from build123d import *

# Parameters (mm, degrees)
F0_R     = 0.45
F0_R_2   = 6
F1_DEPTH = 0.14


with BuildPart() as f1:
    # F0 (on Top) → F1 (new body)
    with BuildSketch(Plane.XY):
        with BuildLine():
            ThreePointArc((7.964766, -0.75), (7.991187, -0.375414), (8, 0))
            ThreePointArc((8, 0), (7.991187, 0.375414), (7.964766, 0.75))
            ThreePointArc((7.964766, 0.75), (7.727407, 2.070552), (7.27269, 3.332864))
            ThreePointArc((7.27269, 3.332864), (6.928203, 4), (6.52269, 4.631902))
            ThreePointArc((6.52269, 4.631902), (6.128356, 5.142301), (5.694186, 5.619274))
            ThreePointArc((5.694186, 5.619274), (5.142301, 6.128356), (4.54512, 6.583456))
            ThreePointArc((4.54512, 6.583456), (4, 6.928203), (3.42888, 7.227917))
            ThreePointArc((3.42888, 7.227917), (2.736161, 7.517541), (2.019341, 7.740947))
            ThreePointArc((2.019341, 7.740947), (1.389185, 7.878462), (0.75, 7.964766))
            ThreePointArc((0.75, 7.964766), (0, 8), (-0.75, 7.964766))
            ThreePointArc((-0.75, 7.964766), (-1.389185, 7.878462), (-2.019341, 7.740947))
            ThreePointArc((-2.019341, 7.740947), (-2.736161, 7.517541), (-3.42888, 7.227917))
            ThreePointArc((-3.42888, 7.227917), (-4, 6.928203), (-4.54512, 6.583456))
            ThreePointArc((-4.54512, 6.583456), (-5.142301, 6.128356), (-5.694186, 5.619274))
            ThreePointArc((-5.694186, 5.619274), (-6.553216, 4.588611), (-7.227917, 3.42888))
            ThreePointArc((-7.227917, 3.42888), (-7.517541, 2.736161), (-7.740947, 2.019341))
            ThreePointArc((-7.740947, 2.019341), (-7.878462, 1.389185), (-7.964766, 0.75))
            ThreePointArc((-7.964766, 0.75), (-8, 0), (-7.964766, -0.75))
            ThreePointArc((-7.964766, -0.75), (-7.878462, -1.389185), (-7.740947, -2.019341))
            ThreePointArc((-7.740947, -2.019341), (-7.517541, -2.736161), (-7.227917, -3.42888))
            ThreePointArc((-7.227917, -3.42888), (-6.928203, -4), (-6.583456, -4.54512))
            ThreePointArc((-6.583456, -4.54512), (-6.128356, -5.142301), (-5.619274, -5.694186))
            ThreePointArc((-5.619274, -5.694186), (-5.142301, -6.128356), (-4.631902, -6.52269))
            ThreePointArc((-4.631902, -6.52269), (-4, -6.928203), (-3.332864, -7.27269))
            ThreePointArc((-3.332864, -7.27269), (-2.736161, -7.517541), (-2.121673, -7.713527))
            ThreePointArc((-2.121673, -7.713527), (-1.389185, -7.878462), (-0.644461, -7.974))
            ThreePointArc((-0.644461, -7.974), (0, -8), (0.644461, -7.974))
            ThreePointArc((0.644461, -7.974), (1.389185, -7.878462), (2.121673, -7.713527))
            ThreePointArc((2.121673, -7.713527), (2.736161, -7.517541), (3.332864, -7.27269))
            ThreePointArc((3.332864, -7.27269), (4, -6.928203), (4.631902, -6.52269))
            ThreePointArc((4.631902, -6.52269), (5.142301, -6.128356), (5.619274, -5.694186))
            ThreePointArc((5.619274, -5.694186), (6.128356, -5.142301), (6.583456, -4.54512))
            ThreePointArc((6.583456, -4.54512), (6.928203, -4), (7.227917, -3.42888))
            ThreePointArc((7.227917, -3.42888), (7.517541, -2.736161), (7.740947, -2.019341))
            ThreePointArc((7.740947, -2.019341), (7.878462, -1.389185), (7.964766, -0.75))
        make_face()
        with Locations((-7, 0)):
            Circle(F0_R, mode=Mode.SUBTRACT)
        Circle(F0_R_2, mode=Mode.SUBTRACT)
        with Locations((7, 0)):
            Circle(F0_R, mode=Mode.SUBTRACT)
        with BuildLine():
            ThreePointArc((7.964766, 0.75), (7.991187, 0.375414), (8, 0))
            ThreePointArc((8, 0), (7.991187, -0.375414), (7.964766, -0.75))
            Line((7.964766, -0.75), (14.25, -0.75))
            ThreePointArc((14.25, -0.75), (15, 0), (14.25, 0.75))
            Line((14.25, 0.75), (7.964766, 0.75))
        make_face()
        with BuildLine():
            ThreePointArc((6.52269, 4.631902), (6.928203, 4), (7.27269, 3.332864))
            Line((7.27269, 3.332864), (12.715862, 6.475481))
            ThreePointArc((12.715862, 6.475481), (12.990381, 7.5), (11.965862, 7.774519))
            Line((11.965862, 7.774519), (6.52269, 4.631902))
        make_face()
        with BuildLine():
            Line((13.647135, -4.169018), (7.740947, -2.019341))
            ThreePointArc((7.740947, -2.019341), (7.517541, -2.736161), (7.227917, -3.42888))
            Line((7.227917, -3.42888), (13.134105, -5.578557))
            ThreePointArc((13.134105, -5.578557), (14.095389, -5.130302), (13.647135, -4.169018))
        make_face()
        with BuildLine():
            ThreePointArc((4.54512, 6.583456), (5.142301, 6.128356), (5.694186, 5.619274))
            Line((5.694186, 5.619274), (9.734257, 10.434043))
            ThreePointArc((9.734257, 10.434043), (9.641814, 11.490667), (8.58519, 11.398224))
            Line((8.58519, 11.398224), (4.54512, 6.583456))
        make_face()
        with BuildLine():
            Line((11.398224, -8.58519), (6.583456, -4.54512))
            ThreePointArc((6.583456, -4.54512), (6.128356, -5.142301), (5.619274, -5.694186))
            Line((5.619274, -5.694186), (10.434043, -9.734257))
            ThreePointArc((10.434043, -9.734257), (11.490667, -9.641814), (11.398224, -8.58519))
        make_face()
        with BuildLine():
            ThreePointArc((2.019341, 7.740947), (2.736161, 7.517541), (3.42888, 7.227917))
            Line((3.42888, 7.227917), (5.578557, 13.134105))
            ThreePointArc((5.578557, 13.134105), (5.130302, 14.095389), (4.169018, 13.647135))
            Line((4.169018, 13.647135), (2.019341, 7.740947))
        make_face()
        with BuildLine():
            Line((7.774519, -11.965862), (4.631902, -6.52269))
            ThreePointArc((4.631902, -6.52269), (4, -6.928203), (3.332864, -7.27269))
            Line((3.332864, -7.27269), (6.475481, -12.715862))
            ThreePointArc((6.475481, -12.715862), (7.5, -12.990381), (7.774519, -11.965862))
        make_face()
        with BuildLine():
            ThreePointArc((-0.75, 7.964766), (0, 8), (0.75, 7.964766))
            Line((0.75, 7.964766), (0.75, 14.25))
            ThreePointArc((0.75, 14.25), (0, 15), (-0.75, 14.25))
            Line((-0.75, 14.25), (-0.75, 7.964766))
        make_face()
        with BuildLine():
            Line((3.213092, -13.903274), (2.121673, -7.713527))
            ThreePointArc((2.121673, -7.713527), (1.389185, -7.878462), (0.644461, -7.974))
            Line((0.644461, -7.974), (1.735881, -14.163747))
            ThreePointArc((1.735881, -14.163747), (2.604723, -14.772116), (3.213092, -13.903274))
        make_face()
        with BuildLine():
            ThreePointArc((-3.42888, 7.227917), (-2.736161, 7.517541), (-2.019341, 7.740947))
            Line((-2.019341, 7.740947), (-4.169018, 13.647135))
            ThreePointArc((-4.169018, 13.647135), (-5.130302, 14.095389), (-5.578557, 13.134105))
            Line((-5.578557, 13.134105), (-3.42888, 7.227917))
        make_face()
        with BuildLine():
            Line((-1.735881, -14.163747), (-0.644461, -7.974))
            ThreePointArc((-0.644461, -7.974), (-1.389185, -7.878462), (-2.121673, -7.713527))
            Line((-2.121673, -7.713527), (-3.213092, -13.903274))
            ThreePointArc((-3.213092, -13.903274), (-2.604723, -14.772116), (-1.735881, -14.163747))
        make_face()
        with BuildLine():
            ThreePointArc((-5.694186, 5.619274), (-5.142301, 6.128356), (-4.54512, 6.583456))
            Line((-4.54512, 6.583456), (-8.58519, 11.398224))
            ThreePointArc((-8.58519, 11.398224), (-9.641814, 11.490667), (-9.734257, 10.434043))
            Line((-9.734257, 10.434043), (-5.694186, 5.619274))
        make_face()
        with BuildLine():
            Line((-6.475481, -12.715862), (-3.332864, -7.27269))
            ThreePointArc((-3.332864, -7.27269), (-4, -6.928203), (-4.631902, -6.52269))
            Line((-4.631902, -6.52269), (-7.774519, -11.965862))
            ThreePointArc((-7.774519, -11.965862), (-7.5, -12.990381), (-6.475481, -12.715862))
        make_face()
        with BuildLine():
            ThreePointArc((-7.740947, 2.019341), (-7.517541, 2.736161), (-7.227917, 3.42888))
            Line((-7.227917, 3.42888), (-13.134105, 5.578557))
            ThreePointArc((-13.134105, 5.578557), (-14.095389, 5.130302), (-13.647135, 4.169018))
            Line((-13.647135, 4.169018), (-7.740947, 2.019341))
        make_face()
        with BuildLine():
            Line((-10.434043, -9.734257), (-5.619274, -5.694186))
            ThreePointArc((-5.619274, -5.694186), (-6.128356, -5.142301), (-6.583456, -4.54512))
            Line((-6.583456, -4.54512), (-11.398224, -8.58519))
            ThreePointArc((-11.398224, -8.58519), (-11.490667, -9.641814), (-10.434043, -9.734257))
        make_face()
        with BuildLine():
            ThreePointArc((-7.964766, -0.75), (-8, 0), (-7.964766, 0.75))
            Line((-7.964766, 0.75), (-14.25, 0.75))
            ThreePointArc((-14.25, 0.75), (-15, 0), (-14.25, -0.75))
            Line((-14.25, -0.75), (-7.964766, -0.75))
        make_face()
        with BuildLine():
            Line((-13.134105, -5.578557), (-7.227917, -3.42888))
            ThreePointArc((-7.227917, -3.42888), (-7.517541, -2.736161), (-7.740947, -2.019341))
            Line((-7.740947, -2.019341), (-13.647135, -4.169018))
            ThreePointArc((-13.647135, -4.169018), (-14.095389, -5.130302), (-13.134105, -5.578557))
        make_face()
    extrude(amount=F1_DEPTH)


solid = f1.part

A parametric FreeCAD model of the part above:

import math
import FreeCAD as App
import Part
import Sketcher
from FreeCAD import Vector

doc = App.newDocument("Part")
params = doc.addObject("Spreadsheet::Sheet", "Params")
for row, (alias, value) in enumerate([
    ("sketch1_diameter", "12 mm"),
    ("sketch1_diameter2", "0.9 mm"),
    ("sketch1_diameter3", "0.9 mm"),
    ("sketch1_radius", "0.75 mm"),
    ("sketch1_radius2", "0.75 mm"),
    ("pad1_length", "0.14 mm"),
], start=1):
    params.set(f"A{row}", alias)
    params.set(f"B{row}", "=" + value)
    params.setAlias(f"B{row}", alias)

body = doc.addObject("PartDesign::Body", "Body")

# Sketch on XY plane
sketch1 = doc.addObject("Sketcher::SketchObject", "Sketch")
body.addObject(sketch1)
sketch1.AttachmentSupport = (doc.XY_Plane, [""])
sketch1.MapMode = "FlatFace"
sketch1.addGeometry(Part.ArcOfCircle(Part.Circle(Vector(0.000009, -0.000002, 0), Vector(0, 0, 1), 7.999991), math.radians(-14.620623), math.radians(-5.379371)), False)
sketch1.addGeometry(Part.LineSegment(Vector(7.964766, -0.75, 0), Vector(14.25, -0.75, 0)), False)
sketch1.addGeometry(Part.ArcOfCircle(Part.Circle(Vector(14.25, 0, 0), Vector(0, 0, 1), 0.75), math.radians(-90), math.radians(90)), False)
sketch1.addGeometry(Part.LineSegment(Vector(14.25, 0.75, 0), Vector(7.964766, 0.75, 0)), False)
sketch1.addGeometry(Part.ArcOfCircle(Part.Circle(Vector(0.00002, 0.000006, 0), Vector(0, 0, 1), 7.99998), math.radians(5.379348), math.radians(24.620639)), False)
sketch1.addGeometry(Part.LineSegment(Vector(7.27269, 3.332864, 0), Vector(12.715862, 6.475481, 0)), False)
sketch1.addGeometry(Part.ArcOfCircle(Part.Circle(Vector(12.340862, 7.125, 0), Vector(0, 0, 1), 0.75), math.radians(-59.999998), math.radians(120.000002)), False)
sketch1.addGeometry(Part.LineSegment(Vector(11.965862, 7.774519, 0), Vector(6.52269, 4.631902, 0)), False)
sketch1.addGeometry(Part.ArcOfCircle(Part.Circle(Vector(0.000136, 0.000111, 0), Vector(0, 0, 1), 7.999825), math.radians(35.379294), math.radians(44.620741)), False)
sketch1.addGeometry(Part.LineSegment(Vector(5.694186, 5.619274, 0), Vector(9.734257, 10.434043, 0)), False)
sketch1.addGeometry(Part.ArcOfCircle(Part.Circle(Vector(9.159724, 10.916134, 0), Vector(0, 0, 1), 0.75), math.radians(-39.99998), math.radians(140.00002)), False)
sketch1.addGeometry(Part.LineSegment(Vector(8.58519, 11.398224, 0), Vector(4.54512, 6.583456, 0)), False)
sketch1.addGeometry(Part.ArcOfCircle(Part.Circle(Vector(-0.000081, -0.000145, 0), Vector(0, 0, 1), 8.000166), math.radians(55.379493), math.radians(64.620543)), False)
sketch1.addGeometry(Part.LineSegment(Vector(3.42888, 7.227917, 0), Vector(5.578557, 13.134105, 0)), False)
sketch1.addGeometry(Part.ArcOfCircle(Part.Circle(Vector(4.873787, 13.390619, 0), Vector(0, 0, 1), 0.75), math.radians(-19.999942), math.radians(159.99996)), False)
sketch1.addGeometry(Part.LineSegment(Vector(4.169018, 13.647135, 0), Vector(2.019341, 7.740947, 0)), False)
sketch1.addGeometry(Part.ArcOfCircle(Part.Circle(Vector(0.000002, 0.000009, 0), Vector(0, 0, 1), 7.999991), math.radians(75.379377), math.radians(84.620629)), False)
sketch1.addGeometry(Part.LineSegment(Vector(0.75, 7.964766, 0), Vector(0.75, 14.25, 0)), False)
sketch1.addGeometry(Part.ArcOfCircle(Part.Circle(Vector(0, 14.25, 0), Vector(0, 0, 1), 0.75), math.radians(0), math.radians(180)), False)
sketch1.addGeometry(Part.LineSegment(Vector(-0.75, 14.25, 0), Vector(-0.75, 7.964766, 0)), False)
sketch1.addGeometry(Part.ArcOfCircle(Part.Circle(Vector(-0.000002, 0.000009, 0), Vector(0, 0, 1), 7.999991), math.radians(95.379371), math.radians(104.620623)), False)
sketch1.addGeometry(Part.LineSegment(Vector(-2.019341, 7.740947, 0), Vector(-4.169018, 13.647135, 0)), False)
sketch1.addGeometry(Part.ArcOfCircle(Part.Circle(Vector(-4.873787, 13.390619, 0), Vector(0, 0, 1), 0.75), math.radians(20.00004), math.radians(199.999942)), False)
sketch1.addGeometry(Part.LineSegment(Vector(-5.578557, 13.134105, 0), Vector(-3.42888, 7.227917, 0)), False)
sketch1.addGeometry(Part.ArcOfCircle(Part.Circle(Vector(0.000081, -0.000145, 0), Vector(0, 0, 1), 8.000166), math.radians(115.379457), math.radians(124.620507)), False)
sketch1.addGeometry(Part.LineSegment(Vector(-4.54512, 6.583456, 0), Vector(-8.58519, 11.398224, 0)), False)
sketch1.addGeometry(Part.ArcOfCircle(Part.Circle(Vector(-9.159724, 10.916134, 0), Vector(0, 0, 1), 0.75), math.radians(39.99998), math.radians(219.99998)), False)
sketch1.addGeometry(Part.LineSegment(Vector(-9.734257, 10.434043, 0), Vector(-5.694186, 5.619274, 0)), False)
sketch1.addGeometry(Part.ArcOfCircle(Part.Circle(Vector(0.000026, -0.00002, 0), Vector(0, 0, 1), 8.000033), math.radians(135.379408), math.radians(154.620571)), False)
sketch1.addGeometry(Part.LineSegment(Vector(-7.227917, 3.42888, 0), Vector(-13.134105, 5.578557, 0)), False)
sketch1.addGeometry(Part.ArcOfCircle(Part.Circle(Vector(-13.390619, 4.873787, 0), Vector(0, 0, 1), 0.75), math.radians(70.000058), math.radians(249.99996)), False)
sketch1.addGeometry(Part.LineSegment(Vector(-13.647135, 4.169018, 0), Vector(-7.740947, 2.019341, 0)), False)
sketch1.addGeometry(Part.ArcOfCircle(Part.Circle(Vector(-0.000009, 0.000002, 0), Vector(0, 0, 1), 7.999991), math.radians(165.379377), math.radians(174.620629)), False)
sketch1.addGeometry(Part.LineSegment(Vector(-7.964766, 0.75, 0), Vector(-14.25, 0.75, 0)), False)
sketch1.addGeometry(Part.ArcOfCircle(Part.Circle(Vector(-14.25, 0, 0), Vector(0, 0, 1), 0.75), math.radians(90), math.radians(270)), False)
sketch1.addGeometry(Part.LineSegment(Vector(-14.25, -0.75, 0), Vector(-7.964766, -0.75, 0)), False)
sketch1.addGeometry(Part.ArcOfCircle(Part.Circle(Vector(-0.000009, -0.000002, 0), Vector(0, 0, 1), 7.999991), math.radians(-174.620629), math.radians(-165.379377)), False)
sketch1.addGeometry(Part.LineSegment(Vector(-7.740947, -2.019341, 0), Vector(-13.647135, -4.169018, 0)), False)
sketch1.addGeometry(Part.ArcOfCircle(Part.Circle(Vector(-13.390619, -4.873787, 0), Vector(0, 0, 1), 0.75), math.radians(110.00004), math.radians(289.999942)), False)
sketch1.addGeometry(Part.LineSegment(Vector(-13.134105, -5.578557, 0), Vector(-7.227917, -3.42888, 0)), False)
sketch1.addGeometry(Part.ArcOfCircle(Part.Circle(Vector(0.000145, 0.000081, 0), Vector(0, 0, 1), 8.000166), math.radians(-154.620543), math.radians(-145.379493)), False)
sketch1.addGeometry(Part.LineSegment(Vector(-6.583456, -4.54512, 0), Vector(-11.398224, -8.58519, 0)), False)
sketch1.addGeometry(Part.ArcOfCircle(Part.Circle(Vector(-10.916134, -9.159724, 0), Vector(0, 0, 1), 0.75), math.radians(129.99998), math.radians(309.99998)), False)
sketch1.addGeometry(Part.LineSegment(Vector(-10.434043, -9.734257, 0), Vector(-5.619274, -5.694186, 0)), False)
sketch1.addGeometry(Part.ArcOfCircle(Part.Circle(Vector(-0.000111, -0.000136, 0), Vector(0, 0, 1), 7.999825), math.radians(-134.620741), math.radians(-125.379294)), False)
sketch1.addGeometry(Part.LineSegment(Vector(-4.631902, -6.52269, 0), Vector(-7.774519, -11.965862, 0)), False)
sketch1.addGeometry(Part.ArcOfCircle(Part.Circle(Vector(-7.125, -12.340862, 0), Vector(0, 0, 1), 0.75), math.radians(149.999998), math.radians(329.999998)), False)
sketch1.addGeometry(Part.LineSegment(Vector(-6.475481, -12.715862, 0), Vector(-3.332864, -7.27269, 0)), False)
sketch1.addGeometry(Part.ArcOfCircle(Part.Circle(Vector(-0.000009, -0.000017, 0), Vector(0, 0, 1), 7.99998), math.radians(-114.620612), math.radians(-105.379349)), False)
sketch1.addGeometry(Part.LineSegment(Vector(-2.121673, -7.713527, 0), Vector(-3.213092, -13.903274, 0)), False)
sketch1.addGeometry(Part.ArcOfCircle(Part.Circle(Vector(-2.474486, -14.033511, 0), Vector(0, 0, 1), 0.75), math.radians(169.999968), math.radians(349.999968)), False)
sketch1.addGeometry(Part.LineSegment(Vector(-1.735881, -14.163747, 0), Vector(-0.644461, -7.974, 0)), False)
sketch1.addGeometry(Part.ArcOfCircle(Part.Circle(Vector(0, 0.000115, 0), Vector(0, 0, 1), 8.000115), math.radians(-94.620552), math.radians(-85.379448)), False)
sketch1.addGeometry(Part.LineSegment(Vector(0.644461, -7.974, 0), Vector(1.735881, -14.163747, 0)), False)
sketch1.addGeometry(Part.ArcOfCircle(Part.Circle(Vector(2.474486, -14.033511, 0), Vector(0, 0, 1), 0.75), math.radians(-169.999968), math.radians(10.000032)), False)
sketch1.addGeometry(Part.LineSegment(Vector(3.213092, -13.903274, 0), Vector(2.121673, -7.713527, 0)), False)
sketch1.addGeometry(Part.ArcOfCircle(Part.Circle(Vector(0.000009, -0.000017, 0), Vector(0, 0, 1), 7.99998), math.radians(-74.620651), math.radians(-65.379388)), False)
sketch1.addGeometry(Part.LineSegment(Vector(3.332864, -7.27269, 0), Vector(6.475481, -12.715862, 0)), False)
sketch1.addGeometry(Part.ArcOfCircle(Part.Circle(Vector(7.125, -12.340862, 0), Vector(0, 0, 1), 0.75), math.radians(-149.999998), math.radians(30.000002)), False)
sketch1.addGeometry(Part.LineSegment(Vector(7.774519, -11.965862, 0), Vector(4.631902, -6.52269, 0)), False)
sketch1.addGeometry(Part.ArcOfCircle(Part.Circle(Vector(0.000111, -0.000136, 0), Vector(0, 0, 1), 7.999825), math.radians(-54.620706), math.radians(-45.379259)), False)
sketch1.addGeometry(Part.LineSegment(Vector(5.619274, -5.694186, 0), Vector(10.434043, -9.734257, 0)), False)
sketch1.addGeometry(Part.ArcOfCircle(Part.Circle(Vector(10.916134, -9.159724, 0), Vector(0, 0, 1), 0.75), math.radians(-129.99998), math.radians(50.00002)), False)
sketch1.addGeometry(Part.LineSegment(Vector(11.398224, -8.58519, 0), Vector(6.583456, -4.54512, 0)), False)
sketch1.addGeometry(Part.ArcOfCircle(Part.Circle(Vector(-0.000145, 0.000081, 0), Vector(0, 0, 1), 8.000166), math.radians(-34.620507), math.radians(-25.379457)), False)
sketch1.addGeometry(Part.LineSegment(Vector(7.227917, -3.42888, 0), Vector(13.134105, -5.578557, 0)), False)
sketch1.addGeometry(Part.ArcOfCircle(Part.Circle(Vector(13.390619, -4.873787, 0), Vector(0, 0, 1), 0.75), math.radians(-109.999942), math.radians(69.99996)), False)
sketch1.addGeometry(Part.LineSegment(Vector(13.647135, -4.169018, 0), Vector(7.740947, -2.019341, 0)), False)
sketch1.addGeometry(Part.Circle(Vector(-7, 0, 0), Vector(0, 0, 1), 0.45), False)
sketch1.addGeometry(Part.Circle(Vector(0, 0, 0), Vector(0, 0, 1), 6), False)
sketch1.addGeometry(Part.Circle(Vector(7, 0, 0), Vector(0, 0, 1), 0.45), False)
sketch1.addConstraint(Sketcher.Constraint("Coincident", 0, 2, 1, 1))
sketch1.addConstraint(Sketcher.Constraint("Coincident", 1, 2, 2, 1))
sketch1.addConstraint(Sketcher.Constraint("Coincident", 2, 2, 3, 1))
sketch1.addConstraint(Sketcher.Constraint("Coincident", 3, 2, 4, 1))
sketch1.addConstraint(Sketcher.Constraint("Coincident", 4, 2, 5, 1))
sketch1.addConstraint(Sketcher.Constraint("Coincident", 5, 2, 6, 1))
sketch1.addConstraint(Sketcher.Constraint("Coincident", 6, 2, 7, 1))
sketch1.addConstraint(Sketcher.Constraint("Coincident", 7, 2, 8, 1))
sketch1.addConstraint(Sketcher.Constraint("Coincident", 8, 2, 9, 1))
sketch1.addConstraint(Sketcher.Constraint("Coincident", 9, 2, 10, 1))
sketch1.addConstraint(Sketcher.Constraint("Coincident", 10, 2, 11, 1))
sketch1.addConstraint(Sketcher.Constraint("Coincident", 11, 2, 12, 1))
sketch1.addConstraint(Sketcher.Constraint("Coincident", 12, 2, 13, 1))
sketch1.addConstraint(Sketcher.Constraint("Coincident", 13, 2, 14, 1))
sketch1.addConstraint(Sketcher.Constraint("Coincident", 14, 2, 15, 1))
sketch1.addConstraint(Sketcher.Constraint("Coincident", 15, 2, 16, 1))
sketch1.addConstraint(Sketcher.Constraint("Coincident", 16, 2, 17, 1))
sketch1.addConstraint(Sketcher.Constraint("Coincident", 17, 2, 18, 1))
sketch1.addConstraint(Sketcher.Constraint("Coincident", 18, 2, 19, 1))
sketch1.addConstraint(Sketcher.Constraint("Coincident", 19, 2, 20, 1))
sketch1.addConstraint(Sketcher.Constraint("Coincident", 20, 2, 21, 1))
sketch1.addConstraint(Sketcher.Constraint("Coincident", 21, 2, 22, 1))
sketch1.addConstraint(Sketcher.Constraint("Coincident", 22, 2, 23, 1))
sketch1.addConstraint(Sketcher.Constraint("Coincident", 23, 2, 24, 1))
sketch1.addConstraint(Sketcher.Constraint("Coincident", 24, 2, 25, 1))
sketch1.addConstraint(Sketcher.Constraint("Coincident", 25, 2, 26, 1))
sketch1.addConstraint(Sketcher.Constraint("Coincident", 26, 2, 27, 1))
sketch1.addConstraint(Sketcher.Constraint("Coincident", 27, 2, 28, 1))
sketch1.addConstraint(Sketcher.Constraint("Coincident", 28, 2, 29, 1))
sketch1.addConstraint(Sketcher.Constraint("Coincident", 29, 2, 30, 1))
sketch1.addConstraint(Sketcher.Constraint("Coincident", 30, 2, 31, 1))
sketch1.addConstraint(Sketcher.Constraint("Coincident", 31, 2, 32, 1))
sketch1.addConstraint(Sketcher.Constraint("Coincident", 32, 2, 33, 1))
sketch1.addConstraint(Sketcher.Constraint("Coincident", 33, 2, 34, 1))
sketch1.addConstraint(Sketcher.Constraint("Coincident", 34, 2, 35, 1))
sketch1.addConstraint(Sketcher.Constraint("Coincident", 35, 2, 36, 1))
sketch1.addConstraint(Sketcher.Constraint("Coincident", 36, 2, 37, 1))
sketch1.addConstraint(Sketcher.Constraint("Coincident", 37, 2, 38, 1))
sketch1.addConstraint(Sketcher.Constraint("Coincident", 38, 2, 39, 1))
sketch1.addConstraint(Sketcher.Constraint("Coincident", 39, 2, 40, 1))
sketch1.addConstraint(Sketcher.Constraint("Coincident", 40, 2, 41, 1))
sketch1.addConstraint(Sketcher.Constraint("Coincident", 41, 2, 42, 1))
sketch1.addConstraint(Sketcher.Constraint("Coincident", 42, 2, 43, 1))
sketch1.addConstraint(Sketcher.Constraint("Coincident", 43, 2, 44, 1))
sketch1.addConstraint(Sketcher.Constraint("Coincident", 44, 2, 45, 1))
sketch1.addConstraint(Sketcher.Constraint("Coincident", 45, 2, 46, 1))
sketch1.addConstraint(Sketcher.Constraint("Coincident", 46, 2, 47, 1))
sketch1.addConstraint(Sketcher.Constraint("Coincident", 47, 2, 48, 1))
sketch1.addConstraint(Sketcher.Constraint("Coincident", 48, 2, 49, 1))
sketch1.addConstraint(Sketcher.Constraint("Coincident", 49, 2, 50, 1))
sketch1.addConstraint(Sketcher.Constraint("Coincident", 50, 2, 51, 1))
sketch1.addConstraint(Sketcher.Constraint("Coincident", 51, 2, 52, 1))
sketch1.addConstraint(Sketcher.Constraint("Coincident", 52, 2, 53, 1))
sketch1.addConstraint(Sketcher.Constraint("Coincident", 53, 2, 54, 1))
sketch1.addConstraint(Sketcher.Constraint("Coincident", 54, 2, 55, 1))
sketch1.addConstraint(Sketcher.Constraint("Coincident", 55, 2, 56, 1))
sketch1.addConstraint(Sketcher.Constraint("Coincident", 56, 2, 57, 1))
sketch1.addConstraint(Sketcher.Constraint("Coincident", 57, 2, 58, 1))
sketch1.addConstraint(Sketcher.Constraint("Coincident", 58, 2, 59, 1))
sketch1.addConstraint(Sketcher.Constraint("Coincident", 59, 2, 60, 1))
sketch1.addConstraint(Sketcher.Constraint("Coincident", 60, 2, 61, 1))
sketch1.addConstraint(Sketcher.Constraint("Coincident", 61, 2, 62, 1))
sketch1.addConstraint(Sketcher.Constraint("Coincident", 62, 2, 63, 1))
sketch1.addConstraint(Sketcher.Constraint("Coincident", 63, 2, 64, 1))
sketch1.addConstraint(Sketcher.Constraint("Coincident", 64, 2, 65, 1))
sketch1.addConstraint(Sketcher.Constraint("Coincident", 65, 2, 66, 1))
sketch1.addConstraint(Sketcher.Constraint("Coincident", 66, 2, 67, 1))
sketch1.addConstraint(Sketcher.Constraint("Coincident", 67, 2, 0, 1))
sketch1.addConstraint(Sketcher.Constraint("Horizontal", 1))
sketch1.addConstraint(Sketcher.Constraint("Horizontal", 3))
sketch1.addConstraint(Sketcher.Constraint("Vertical", 17))
sketch1.addConstraint(Sketcher.Constraint("Vertical", 19))
sketch1.addConstraint(Sketcher.Constraint("Horizontal", 33))
sketch1.addConstraint(Sketcher.Constraint("Horizontal", 35))
sketch1.addConstraint(Sketcher.Constraint("Coincident", 0, 3, -1, 1))
sketch1.addConstraint(Sketcher.Constraint("Coincident", 16, 3, -1, 1))
sketch1.addConstraint(Sketcher.Constraint("Coincident", 20, 3, -1, 1))
sketch1.addConstraint(Sketcher.Constraint("Coincident", 32, 3, -1, 1))
sketch1.addConstraint(Sketcher.Constraint("Coincident", 36, 3, -1, 1))
sketch1.addConstraint(Sketcher.Constraint("Coincident", 69, 3, -1, 1))
sketch1.addConstraint(Sketcher.Constraint("PointOnObject", 2, 3, -1))
sketch1.addConstraint(Sketcher.Constraint("PointOnObject", 18, 3, -2))
sketch1.addConstraint(Sketcher.Constraint("PointOnObject", 34, 3, -1))
sketch1.addConstraint(Sketcher.Constraint("PointOnObject", 52, 3, -2))
sketch1.addConstraint(Sketcher.Constraint("PointOnObject", 68, 3, -1))
sketch1.addConstraint(Sketcher.Constraint("PointOnObject", 70, 3, -1))
sketch1.addConstraint(Sketcher.Constraint("Diameter", 69, 12.0))
sketch1.addConstraint(Sketcher.Constraint("Diameter", 68, 0.9))
sketch1.addConstraint(Sketcher.Constraint("Diameter", 70, 0.9))
sketch1.addConstraint(Sketcher.Constraint("Radius", 2, 0.75))
sketch1.addConstraint(Sketcher.Constraint("Radius", 6, 0.75))
sketch1.addConstraint(Sketcher.Constraint("Radius", 10, 0.75))
sketch1.addConstraint(Sketcher.Constraint("Radius", 14, 0.75))
sketch1.addConstraint(Sketcher.Constraint("Radius", 18, 0.75))
sketch1.addConstraint(Sketcher.Constraint("Radius", 22, 0.75))
sketch1.addConstraint(Sketcher.Constraint("Radius", 26, 0.75))
sketch1.addConstraint(Sketcher.Constraint("Radius", 30, 0.75))
sketch1.addConstraint(Sketcher.Constraint("Radius", 34, 0.75))
sketch1.addConstraint(Sketcher.Constraint("Radius", 38, 0.75))
sketch1.addConstraint(Sketcher.Constraint("Radius", 42, 0.75))
sketch1.addConstraint(Sketcher.Constraint("Radius", 46, 0.75))
sketch1.addConstraint(Sketcher.Constraint("Radius", 50, 0.75))
sketch1.addConstraint(Sketcher.Constraint("Radius", 54, 0.75))
sketch1.addConstraint(Sketcher.Constraint("Radius", 58, 0.75))
sketch1.addConstraint(Sketcher.Constraint("Radius", 62, 0.75))
sketch1.addConstraint(Sketcher.Constraint("Radius", 66, 0.75))
sketch1.addConstraint(Sketcher.Constraint("DistanceX", 68, 3, -1, 1, 7.0))
sketch1.addConstraint(Sketcher.Constraint("DistanceX", -1, 1, 70, 3, 7.0))
sketch1.addConstraint(Sketcher.Constraint("DistanceX", -1, 1, 2, 3, 14.25))
sketch1.addConstraint(Sketcher.Constraint("DistanceY", -1, 1, 18, 3, 14.25))
sketch1.addConstraint(Sketcher.Constraint("DistanceX", 34, 3, -1, 1, 14.25))
sketch1.addConstraint(Sketcher.Constraint("DistanceX", -1, 1, 1, 2, 14.25))
sketch1.addConstraint(Sketcher.Constraint("DistanceX", -1, 1, 2, 2, 14.25))
sketch1.addConstraint(Sketcher.Constraint("DistanceY", -1, 1, 17, 2, 14.25))
sketch1.addConstraint(Sketcher.Constraint("DistanceY", -1, 1, 18, 2, 14.25))
sketch1.addConstraint(Sketcher.Constraint("DistanceX", 33, 2, -1, 1, 14.25))
sketch1.addConstraint(Sketcher.Constraint("DistanceX", 34, 2, -1, 1, 14.25))
sketch1.addConstraint(Sketcher.Constraint("Radius", 0, 7.999991))
sketch1.addConstraint(Sketcher.Constraint("Radius", 4, 7.99998))
sketch1.addConstraint(Sketcher.Constraint("Radius", 16, 7.999991))
sketch1.addConstraint(Sketcher.Constraint("Radius", 20, 7.999991))
sketch1.addConstraint(Sketcher.Constraint("Radius", 32, 7.999991))
sketch1.addConstraint(Sketcher.Constraint("Radius", 36, 7.999991))
sketch1.addConstraint(Sketcher.Constraint("Radius", 48, 7.99998))
sketch1.addConstraint(Sketcher.Constraint("Radius", 56, 7.99998))
sketch1.addConstraint(Sketcher.Constraint("DistanceY", -1, 1, 6, 3, 7.125))
sketch1.addConstraint(Sketcher.Constraint("DistanceX", 46, 3, -1, 1, 7.125))
sketch1.addConstraint(Sketcher.Constraint("DistanceX", -1, 1, 58, 3, 7.125))
sketch1.addConstraint(Sketcher.Constraint("DistanceY", 51, 2, -1, 1, 7.974))
sketch1.addConstraint(Sketcher.Constraint("DistanceY", 52, 2, -1, 1, 7.974))
sketch1.addConstraint(Sketcher.Constraint("Radius", 8, 7.999825))
sketch1.addConstraint(Sketcher.Constraint("Radius", 12, 8.000166))
sketch1.addConstraint(Sketcher.Constraint("Radius", 24, 8.000166))
sketch1.addConstraint(Sketcher.Constraint("Radius", 28, 8.000033))
sketch1.addConstraint(Sketcher.Constraint("Radius", 40, 8.000166))
sketch1.addConstraint(Sketcher.Constraint("Radius", 44, 7.999825))
sketch1.addConstraint(Sketcher.Constraint("Radius", 52, 8.000115))
sketch1.addConstraint(Sketcher.Constraint("Radius", 60, 7.999825))
sketch1.addConstraint(Sketcher.Constraint("Radius", 64, 8.000166))
sketch1.addConstraint(Sketcher.Constraint("DistanceX", 3, 2, 3, 1, 6.285234))
sketch1.addConstraint(Sketcher.Constraint("DistanceY", -1, 1, 8, 3, 0.000111))
sketch1.addConstraint(Sketcher.Constraint("DistanceY", -1, 1, 14, 3, 13.390619))
sketch1.addConstraint(Sketcher.Constraint("DistanceY", -1, 1, 22, 3, 13.390619))
sketch1.addConstraint(Sketcher.Constraint("DistanceX", 30, 3, -1, 1, 13.390619))
sketch1.addConstraint(Sketcher.Constraint("DistanceX", 38, 3, -1, 1, 13.390619))
sketch1.addConstraint(Sketcher.Constraint("DistanceX", 44, 3, -1, 1, 0.000111))
sketch1.addConstraint(Sketcher.Constraint("DistanceY", 50, 3, -1, 1, 14.033511))
sketch1.addConstraint(Sketcher.Constraint("DistanceY", 54, 3, -1, 1, 14.033511))
sketch1.addConstraint(Sketcher.Constraint("DistanceX", -1, 1, 60, 3, 0.000111))
sketch1.addConstraint(Sketcher.Constraint("DistanceX", -1, 1, 66, 3, 13.390619))
sketch1.addConstraint(Sketcher.Constraint("DistanceX", -1, 1, 4, 2, 7.27269))
sketch1.addConstraint(Sketcher.Constraint("DistanceY", -1, 1, 5, 2, 6.475481))
sketch1.addConstraint(Sketcher.Constraint("DistanceY", -1, 1, 6, 2, 7.774519))
sketch1.addConstraint(Sketcher.Constraint("DistanceX", -1, 1, 7, 2, 6.52269))
sketch1.addConstraint(Sketcher.Constraint("DistanceX", -1, 1, 10, 2, 8.58519))
sketch1.addConstraint(Sketcher.Constraint("DistanceX", -1, 1, 11, 2, 4.54512))
sketch1.addConstraint(Sketcher.Constraint("DistanceX", -1, 1, 12, 2, 3.42888))
sketch1.addConstraint(Sketcher.Constraint("DistanceX", -1, 1, 15, 2, 2.019341))
sketch1.addConstraint(Sketcher.Constraint("DistanceX", 20, 2, -1, 1, 2.019341))
sketch1.addConstraint(Sketcher.Constraint("DistanceX", 21, 2, -1, 1, 4.169018))
sketch1.addConstraint(Sketcher.Constraint("DistanceX", 23, 2, -1, 1, 3.42888))
sketch1.addConstraint(Sketcher.Constraint("DistanceX", 24, 2, -1, 1, 4.54512))
sketch1.addConstraint(Sketcher.Constraint("DistanceX", 25, 2, -1, 1, 8.58519))
sketch1.addConstraint(Sketcher.Constraint("DistanceY", -1, 1, 28, 2, 3.42888))
sketch1.addConstraint(Sketcher.Constraint("DistanceY", -1, 1, 31, 2, 2.019341))
sketch1.addConstraint(Sketcher.Constraint("DistanceY", 36, 2, -1, 1, 2.019341))
sketch1.addConstraint(Sketcher.Constraint("DistanceY", 37, 2, -1, 1, 4.169018))
sketch1.addConstraint(Sketcher.Constraint("DistanceY", 39, 2, -1, 1, 3.42888))
sketch1.addConstraint(Sketcher.Constraint("DistanceY", 40, 2, -1, 1, 4.54512))
sketch1.addConstraint(Sketcher.Constraint("DistanceY", 41, 2, -1, 1, 8.58519))
sketch1.addConstraint(Sketcher.Constraint("DistanceY", 44, 2, -1, 1, 6.52269))
sketch1.addConstraint(Sketcher.Constraint("DistanceX", 45, 2, -1, 1, 7.774519))
sketch1.addConstraint(Sketcher.Constraint("DistanceX", 46, 2, -1, 1, 6.475481))
sketch1.addConstraint(Sketcher.Constraint("DistanceY", 46, 2, -1, 1, 12.715862))
sketch1.addConstraint(Sketcher.Constraint("DistanceY", 47, 2, -1, 1, 7.27269))
sketch1.addConstraint(Sketcher.Constraint("DistanceX", 50, 2, -1, 1, 1.735881))
sketch1.addConstraint(Sketcher.Constraint("DistanceX", 51, 2, -1, 1, 0.644461))
sketch1.addConstraint(Sketcher.Constraint("DistanceX", -1, 1, 53, 2, 1.735881))
sketch1.addConstraint(Sketcher.Constraint("DistanceY", 56, 2, -1, 1, 7.27269))
sketch1.addConstraint(Sketcher.Constraint("DistanceX", -1, 1, 57, 2, 6.475481))
sketch1.addConstraint(Sketcher.Constraint("DistanceX", -1, 1, 58, 2, 7.774519))
sketch1.addConstraint(Sketcher.Constraint("DistanceY", 59, 2, -1, 1, 6.52269))
sketch1.addConstraint(Sketcher.Constraint("DistanceY", 62, 2, -1, 1, 8.58519))
sketch1.addConstraint(Sketcher.Constraint("DistanceY", 63, 2, -1, 1, 4.54512))
sketch1.addConstraint(Sketcher.Constraint("DistanceY", 64, 2, -1, 1, 3.42888))
sketch1.addConstraint(Sketcher.Constraint("DistanceY", 67, 2, -1, 1, 2.019341))
sketch1.addConstraint(Sketcher.Constraint("Distance", 5, 6.285234))
sketch1.addConstraint(Sketcher.Constraint("Distance", 7, 6.285234))
sketch1.addConstraint(Sketcher.Constraint("Distance", 9, 6.285235))
sketch1.addConstraint(Sketcher.Constraint("Distance", 11, 6.285233))
sketch1.addConstraint(Sketcher.Constraint("Distance", 13, 6.285234))
sketch1.addConstraint(Sketcher.Constraint("Distance", 15, 6.285234))
sketch1.addConstraint(Sketcher.Constraint("Distance", 21, 6.285234))
sketch1.addConstraint(Sketcher.Constraint("Distance", 23, 6.285234))
sketch1.addConstraint(Sketcher.Constraint("Distance", 25, 6.285233))
sketch1.addConstraint(Sketcher.Constraint("Distance", 27, 6.285235))
sketch1.addConstraint(Sketcher.Constraint("Distance", 29, 6.285234))
sketch1.addConstraint(Sketcher.Constraint("Distance", 31, 6.285234))
sketch1.addConstraint(Sketcher.Constraint("Distance", 37, 6.285234))
sketch1.addConstraint(Sketcher.Constraint("Distance", 39, 6.285234))
sketch1.addConstraint(Sketcher.Constraint("Distance", 41, 6.285233))
sketch1.addConstraint(Sketcher.Constraint("Distance", 43, 6.285235))
sketch1.addConstraint(Sketcher.Constraint("Distance", 45, 6.285234))
sketch1.addConstraint(Sketcher.Constraint("Distance", 47, 6.285234))
sketch1.addConstraint(Sketcher.Constraint("Distance", 49, 6.285234))
sketch1.addConstraint(Sketcher.Constraint("Distance", 51, 6.285234))
sketch1.addConstraint(Sketcher.Constraint("Distance", 53, 6.285234))
sketch1.addConstraint(Sketcher.Constraint("Distance", 55, 6.285234))
sketch1.addConstraint(Sketcher.Constraint("Distance", 57, 6.285234))
sketch1.addConstraint(Sketcher.Constraint("Distance", 59, 6.285234))
sketch1.addConstraint(Sketcher.Constraint("Distance", 61, 6.285235))
sketch1.addConstraint(Sketcher.Constraint("Distance", 63, 6.285233))
sketch1.addConstraint(Sketcher.Constraint("Distance", 65, 6.285234))
sketch1.addConstraint(Sketcher.Constraint("Distance", 67, 6.285234))
sketch1.addConstraint(Sketcher.Constraint("DistanceX", -1, 1, 6, 3, 12.340862))
sketch1.addConstraint(Sketcher.Constraint("DistanceX", -1, 1, 10, 3, 9.159724))
sketch1.addConstraint(Sketcher.Constraint("DistanceY", -1, 1, 10, 3, 10.916134))
sketch1.addConstraint(Sketcher.Constraint("DistanceY", 12, 3, -1, 1, 0.000145))
sketch1.addConstraint(Sketcher.Constraint("DistanceX", -1, 1, 14, 3, 4.873787))
sketch1.addConstraint(Sketcher.Constraint("DistanceY", 24, 3, -1, 1, 0.000145))
sketch1.addConstraint(Sketcher.Constraint("DistanceX", 26, 3, -1, 1, 9.159724))
sketch1.addConstraint(Sketcher.Constraint("DistanceY", -1, 1, 26, 3, 10.916134))
sketch1.addConstraint(Sketcher.Constraint("DistanceY", -1, 1, 30, 3, 4.873787))
sketch1.addConstraint(Sketcher.Constraint("DistanceX", -1, 1, 40, 3, 0.000145))
sketch1.addConstraint(Sketcher.Constraint("DistanceX", 42, 3, -1, 1, 10.916134))
sketch1.addConstraint(Sketcher.Constraint("DistanceY", 42, 3, -1, 1, 9.159724))
sketch1.addConstraint(Sketcher.Constraint("DistanceY", 58, 3, -1, 1, 12.340862))
sketch1.addConstraint(Sketcher.Constraint("DistanceX", -1, 1, 62, 3, 10.916134))
sketch1.addConstraint(Sketcher.Constraint("DistanceY", 62, 3, -1, 1, 9.159724))
sketch1.addConstraint(Sketcher.Constraint("DistanceX", 64, 3, -1, 1, 0.000145))
sketch1.addConstraint(Sketcher.Constraint("DistanceY", 66, 3, -1, 1, 4.873787))
sketch1.addConstraint(Sketcher.Constraint("DistanceX", -1, 1, 8, 2, 5.694186))
sketch1.addConstraint(Sketcher.Constraint("DistanceX", 26, 2, -1, 1, 9.734257))
sketch1.addConstraint(Sketcher.Constraint("DistanceX", 27, 2, -1, 1, 5.694186))
sketch1.addConstraint(Sketcher.Constraint("DistanceX", 28, 2, -1, 1, 7.227917))
sketch1.addConstraint(Sketcher.Constraint("DistanceX", 42, 2, -1, 1, 10.434043))
sketch1.addConstraint(Sketcher.Constraint("DistanceX", 48, 2, -1, 1, 2.121673))
sketch1.addConstraint(Sketcher.Constraint("DistanceY", 48, 2, -1, 1, 7.713527))
sketch1.addConstraint(Sketcher.Constraint("DistanceX", -1, 1, 54, 2, 3.213092))
sketch1.addConstraint(Sketcher.Constraint("DistanceX", -1, 1, 55, 2, 2.121673))
sketch1.addConstraint(Sketcher.Constraint("DistanceX", -1, 1, 60, 2, 5.619274))
sketch1.setExpression("Constraints[86]", "Params.sketch1_diameter")
sketch1.setExpression("Constraints[87]", "Params.sketch1_diameter2")
sketch1.setExpression("Constraints[88]", "Params.sketch1_diameter3")
sketch1.setExpression("Constraints[89]", "Params.sketch1_radius")
sketch1.setExpression("Constraints[90]", "Params.sketch1_radius2")
pad1 = doc.addObject("PartDesign::Pad", "Pad")
body.addObject(pad1)
pad1.Profile = sketch1
pad1.setExpression("Length", "Params.pad1_length")

doc.recompute()
